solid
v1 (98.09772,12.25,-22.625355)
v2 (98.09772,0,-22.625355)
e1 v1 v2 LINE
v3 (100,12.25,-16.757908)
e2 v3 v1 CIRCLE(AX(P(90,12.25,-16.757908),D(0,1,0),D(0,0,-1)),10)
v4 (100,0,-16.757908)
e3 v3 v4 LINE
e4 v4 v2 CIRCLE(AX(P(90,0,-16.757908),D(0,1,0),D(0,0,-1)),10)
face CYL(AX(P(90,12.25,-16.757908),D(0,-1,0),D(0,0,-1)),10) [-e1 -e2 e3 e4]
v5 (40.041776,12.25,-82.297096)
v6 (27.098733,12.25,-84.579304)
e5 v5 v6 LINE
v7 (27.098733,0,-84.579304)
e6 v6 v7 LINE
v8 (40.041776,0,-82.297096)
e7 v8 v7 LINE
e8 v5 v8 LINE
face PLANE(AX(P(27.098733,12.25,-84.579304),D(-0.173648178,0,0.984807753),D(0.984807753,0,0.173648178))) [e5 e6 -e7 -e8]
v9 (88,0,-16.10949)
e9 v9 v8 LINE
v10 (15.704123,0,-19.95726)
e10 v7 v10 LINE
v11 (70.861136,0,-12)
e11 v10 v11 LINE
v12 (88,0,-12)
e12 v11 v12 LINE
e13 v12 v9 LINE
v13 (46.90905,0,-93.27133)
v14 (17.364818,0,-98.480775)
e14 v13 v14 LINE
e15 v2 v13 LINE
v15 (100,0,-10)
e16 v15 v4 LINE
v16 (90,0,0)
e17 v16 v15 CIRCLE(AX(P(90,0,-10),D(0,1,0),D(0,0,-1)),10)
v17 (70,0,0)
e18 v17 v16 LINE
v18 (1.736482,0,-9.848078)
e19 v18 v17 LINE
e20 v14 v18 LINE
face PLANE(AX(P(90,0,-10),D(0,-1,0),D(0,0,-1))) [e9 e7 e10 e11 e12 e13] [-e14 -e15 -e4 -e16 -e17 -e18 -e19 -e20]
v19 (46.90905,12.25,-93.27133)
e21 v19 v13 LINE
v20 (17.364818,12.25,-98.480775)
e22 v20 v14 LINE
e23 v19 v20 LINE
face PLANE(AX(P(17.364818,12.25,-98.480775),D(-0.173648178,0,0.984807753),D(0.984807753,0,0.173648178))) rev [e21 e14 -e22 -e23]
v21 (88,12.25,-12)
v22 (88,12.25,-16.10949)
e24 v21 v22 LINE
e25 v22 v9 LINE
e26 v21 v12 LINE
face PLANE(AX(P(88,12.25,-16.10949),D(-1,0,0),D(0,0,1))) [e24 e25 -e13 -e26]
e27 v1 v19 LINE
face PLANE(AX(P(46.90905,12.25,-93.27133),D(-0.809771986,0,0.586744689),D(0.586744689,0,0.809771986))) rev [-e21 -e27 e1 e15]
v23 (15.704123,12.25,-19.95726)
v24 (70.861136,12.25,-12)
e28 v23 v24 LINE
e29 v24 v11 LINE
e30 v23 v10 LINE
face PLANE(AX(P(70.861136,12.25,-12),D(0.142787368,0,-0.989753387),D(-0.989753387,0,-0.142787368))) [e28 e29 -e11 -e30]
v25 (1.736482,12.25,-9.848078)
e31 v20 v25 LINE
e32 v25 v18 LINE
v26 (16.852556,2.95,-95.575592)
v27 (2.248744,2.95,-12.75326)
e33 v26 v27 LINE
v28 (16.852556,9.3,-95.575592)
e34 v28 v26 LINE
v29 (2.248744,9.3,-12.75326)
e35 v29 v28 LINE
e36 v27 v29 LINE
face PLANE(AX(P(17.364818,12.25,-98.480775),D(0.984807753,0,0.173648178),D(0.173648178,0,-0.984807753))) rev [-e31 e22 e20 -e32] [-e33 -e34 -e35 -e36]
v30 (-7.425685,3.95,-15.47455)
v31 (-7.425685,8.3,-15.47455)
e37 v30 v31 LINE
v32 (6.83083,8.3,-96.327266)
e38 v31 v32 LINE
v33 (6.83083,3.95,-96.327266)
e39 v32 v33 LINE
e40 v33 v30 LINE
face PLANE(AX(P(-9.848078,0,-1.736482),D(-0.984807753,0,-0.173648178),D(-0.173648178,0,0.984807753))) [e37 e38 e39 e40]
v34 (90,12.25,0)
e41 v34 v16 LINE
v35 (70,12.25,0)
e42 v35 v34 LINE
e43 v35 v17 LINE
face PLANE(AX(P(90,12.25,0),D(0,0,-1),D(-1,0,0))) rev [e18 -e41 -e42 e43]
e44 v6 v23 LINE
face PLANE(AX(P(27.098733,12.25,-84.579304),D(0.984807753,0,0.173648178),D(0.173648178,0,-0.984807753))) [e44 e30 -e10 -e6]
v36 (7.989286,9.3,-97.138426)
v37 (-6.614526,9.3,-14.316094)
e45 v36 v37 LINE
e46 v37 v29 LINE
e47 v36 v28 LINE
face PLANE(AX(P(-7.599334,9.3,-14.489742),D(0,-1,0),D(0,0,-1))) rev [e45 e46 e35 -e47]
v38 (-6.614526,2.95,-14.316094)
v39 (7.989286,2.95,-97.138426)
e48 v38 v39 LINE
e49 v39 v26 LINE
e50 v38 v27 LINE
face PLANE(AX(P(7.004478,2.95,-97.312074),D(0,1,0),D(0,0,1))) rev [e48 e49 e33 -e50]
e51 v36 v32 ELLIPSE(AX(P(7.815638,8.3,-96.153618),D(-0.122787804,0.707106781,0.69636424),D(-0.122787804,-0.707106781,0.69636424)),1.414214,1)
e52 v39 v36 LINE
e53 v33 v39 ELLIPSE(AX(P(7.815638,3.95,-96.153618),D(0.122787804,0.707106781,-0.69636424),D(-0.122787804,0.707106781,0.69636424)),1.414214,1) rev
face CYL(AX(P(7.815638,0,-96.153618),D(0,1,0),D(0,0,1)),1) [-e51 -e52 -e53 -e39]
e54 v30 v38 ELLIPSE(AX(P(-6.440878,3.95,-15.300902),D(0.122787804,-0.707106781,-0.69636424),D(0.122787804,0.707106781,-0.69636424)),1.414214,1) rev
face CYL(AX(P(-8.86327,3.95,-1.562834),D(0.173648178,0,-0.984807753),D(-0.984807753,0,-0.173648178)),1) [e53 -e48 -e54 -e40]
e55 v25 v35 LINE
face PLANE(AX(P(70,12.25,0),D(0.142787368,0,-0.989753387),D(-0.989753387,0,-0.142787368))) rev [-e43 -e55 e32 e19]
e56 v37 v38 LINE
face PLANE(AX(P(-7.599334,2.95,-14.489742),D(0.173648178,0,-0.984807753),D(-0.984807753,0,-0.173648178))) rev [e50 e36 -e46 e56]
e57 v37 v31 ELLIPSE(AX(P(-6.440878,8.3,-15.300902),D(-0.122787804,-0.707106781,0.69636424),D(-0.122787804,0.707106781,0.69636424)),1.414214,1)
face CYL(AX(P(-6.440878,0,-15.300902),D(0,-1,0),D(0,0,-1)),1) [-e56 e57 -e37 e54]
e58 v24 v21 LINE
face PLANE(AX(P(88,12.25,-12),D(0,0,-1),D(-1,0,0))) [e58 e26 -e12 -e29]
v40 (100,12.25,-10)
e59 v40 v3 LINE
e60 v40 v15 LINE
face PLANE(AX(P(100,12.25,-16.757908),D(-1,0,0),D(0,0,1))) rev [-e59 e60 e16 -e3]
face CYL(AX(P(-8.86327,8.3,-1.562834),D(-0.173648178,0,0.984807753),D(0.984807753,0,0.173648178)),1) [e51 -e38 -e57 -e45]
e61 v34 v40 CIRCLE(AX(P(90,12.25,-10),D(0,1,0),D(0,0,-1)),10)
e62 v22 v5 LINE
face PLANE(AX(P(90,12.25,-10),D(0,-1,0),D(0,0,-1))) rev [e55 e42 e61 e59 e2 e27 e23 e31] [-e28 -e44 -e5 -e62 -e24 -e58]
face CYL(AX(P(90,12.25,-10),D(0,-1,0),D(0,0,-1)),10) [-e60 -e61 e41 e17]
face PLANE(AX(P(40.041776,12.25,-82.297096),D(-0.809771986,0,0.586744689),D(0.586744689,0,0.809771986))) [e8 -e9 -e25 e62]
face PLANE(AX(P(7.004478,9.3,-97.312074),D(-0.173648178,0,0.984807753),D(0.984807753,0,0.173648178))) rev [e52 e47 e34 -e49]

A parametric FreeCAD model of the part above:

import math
import FreeCAD as App
import Part
import Sketcher
Q = App.Units.Quantity


def edges_at(feature, points):
    """Names of the edges that pass closest to the given points."""
    edges = feature.Shape.Edges
    near = lambda p: min(range(len(edges)), key=lambda i: edges[i].distToShape(Part.Vertex(*p))[0])
    return sorted({f"Edge{near(p) + 1}" for p in points})

doc = App.newDocument("Part")
body = doc.addObject("PartDesign::Body", "Body")

sketch1 = body.newObject("Sketcher::SketchObject", "Sketch")
sketch1.AttachmentSupport = (doc.getObject("XZ_Plane"), [""])
sketch1.MapMode = "FlatFace"
sketch1.addGeometry(Part.LineSegment(App.Vector(46.9, -93.3, 0), App.Vector(17.4, -98.5, 0)), False)
sketch1.addGeometry(Part.LineSegment(App.Vector(17.4, -98.5, 0), App.Vector(1.7, -9.8, 0)), False)
sketch1.addGeometry(Part.LineSegment(App.Vector(1.7, -9.8, 0), App.Vector(70, 0, 0)), False)
sketch1.addGeometry(Part.LineSegment(App.Vector(70, 0, 0), App.Vector(90, 0, 0)), False)
sketch1.addGeometry(Part.ArcOfCircle(Part.Circle(App.Vector(90, -10, 0), App.Vector(0, 0, 1), 10), math.radians(0), math.radians(90)), False)
sketch1.addGeometry(Part.LineSegment(App.Vector(100, -10, 0), App.Vector(100, -16.8, 0)), False)
sketch1.addGeometry(Part.ArcOfCircle(Part.Circle(App.Vector(90, -16.8, 0), App.Vector(0, 0, 1), 10), math.radians(-36), math.radians(0)), False)
sketch1.addGeometry(Part.LineSegment(App.Vector(98.1, -22.6, 0), App.Vector(46.9, -93.3, 0)), False)
sketch1.addGeometry(Part.LineSegment(App.Vector(40, -82.3, 0), App.Vector(88, -16.1, 0)), False)
sketch1.addGeometry(Part.LineSegment(App.Vector(88, -16.1, 0), App.Vector(88, -12, 0)), False)
sketch1.addGeometry(Part.LineSegment(App.Vector(88, -12, 0), App.Vector(70.9, -12, 0)), False)
sketch1.addGeometry(Part.LineSegment(App.Vector(70.9, -12, 0), App.Vector(15.7, -20, 0)), False)
sketch1.addGeometry(Part.LineSegment(App.Vector(15.7, -20, 0), App.Vector(27.1, -84.6, 0)), False)
sketch1.addGeometry(Part.LineSegment(App.Vector(27.1, -84.6, 0), App.Vector(40, -82.3, 0)), False)
sketch1.addConstraint(Sketcher.Constraint("Coincident", 0, 2, 1, 1))
sketch1.addConstraint(Sketcher.Constraint("Coincident", 1, 2, 2, 1))
sketch1.addConstraint(Sketcher.Constraint("Coincident", 2, 2, 3, 1))
sketch1.addConstraint(Sketcher.Constraint("Tangent", 3, 2, 4, 2))
sketch1.addConstraint(Sketcher.Constraint("Tangent", 4, 1, 5, 1))
sketch1.addConstraint(Sketcher.Constraint("Tangent", 5, 2, 6, 2))
sketch1.addConstraint(Sketcher.Constraint("Tangent", 6, 1, 7, 1))
sketch1.addConstraint(Sketcher.Constraint("Coincident", 7, 2, 0, 1))
sketch1.addConstraint(Sketcher.Constraint("Coincident", 8, 2, 9, 1))
sketch1.addConstraint(Sketcher.Constraint("Coincident", 9, 2, 10, 1))
sketch1.addConstraint(Sketcher.Constraint("Coincident", 10, 2, 11, 1))
sketch1.addConstraint(Sketcher.Constraint("Coincident", 11, 2, 12, 1))
sketch1.addConstraint(Sketcher.Constraint("Coincident", 12, 2, 13, 1))
sketch1.addConstraint(Sketcher.Constraint("Coincident", 13, 2, 8, 1))
sketch1.addConstraint(Sketcher.Constraint("Horizontal", 3))
sketch1.addConstraint(Sketcher.Constraint("Vertical", 5))
sketch1.addConstraint(Sketcher.Constraint("Vertical", 9))
sketch1.addConstraint(Sketcher.Constraint("Horizontal", 10))
sketch1.addConstraint(Sketcher.Constraint("Equal", 4, 6))
sketch1.addConstraint(Sketcher.Constraint("PointOnObject", 2, 2, -1))
sketch1.addConstraint(Sketcher.Constraint("Perpendicular", 0, 1))
sketch1.addConstraint(Sketcher.Constraint("Parallel", 7, 8))
sketch1.addConstraint(Sketcher.Constraint("Parallel", 2, 11))
sketch1.addConstraint(Sketcher.Constraint("Parallel", 1, 12))
sketch1.addConstraint(Sketcher.Constraint("Perpendicular", 12, 13))
sketch1.addConstraint(Sketcher.Constraint("Radius", 4, Q("10 mm")))
sketch1.addConstraint(Sketcher.Constraint("DistanceX", 3, 1, 3, 2, Q("20 mm")))
sketch1.addConstraint(Sketcher.Constraint("Angle", 0, Q("-170 deg")))
sketch1.addConstraint(Sketcher.Constraint("Distance", 0, Q("30 mm")))
sketch1.addConstraint(Sketcher.Constraint("Distance", 1, Q("90 mm")))
sketch1.addConstraint(Sketcher.Constraint("DistanceX", -1, 1, 4, 3, Q("90 mm")))
sketch1.addConstraint(Sketcher.Constraint("DistanceX", -1, 1, 8, 2, Q("88 mm")))
sketch1.addConstraint(Sketcher.Constraint("DistanceY", 9, 2, -1, 1, Q("12 mm")))
sketch1.addConstraint(Sketcher.Constraint("DistanceY", 5, 2, 5, 1, Q("6.757908 mm")))
sketch1.addConstraint(Sketcher.Constraint("DistanceY", 9, 1, 9, 2, Q("4.10949 mm")))
sketch1.addConstraint(Sketcher.Constraint("Distance", 2, Q("68.970229 mm")))
sketch1.addConstraint(Sketcher.Constraint("Distance", 7, Q("87.241811 mm")))
sketch1.addConstraint(Sketcher.Constraint("Distance", 13, Q("13.14271 mm")))
sketch1.addConstraint(Sketcher.Constraint("DistanceX", 10, 2, 10, 1, Q("17.138864 mm")))
sketch1.addConstraint(Sketcher.Constraint("DistanceY", 11, 2, -1, 1, Q("19.95726 mm")))
pad1 = body.newObject("PartDesign::Pad", "Pad")
pad1.Profile = sketch1
pad1.Length = 12.25
pad1.Reversed = True

sketch2 = body.newObject("Sketcher::SketchObject", "Sketch001")
sketch2.Placement = App.Placement(App.Vector(0, 0, 0), App.Rotation(App.Vector(-0.173648178, 0, 0.984807753), App.Vector(0, 1, 0), App.Vector(-0.984807753, 0, -0.173648178), "ZXY"))
sketch2.addGeometry(Part.LineSegment(App.Vector(-97, 9, 0), App.Vector(-97, 3, 0)), False)
sketch2.addGeometry(Part.LineSegment(App.Vector(-97, 3, 0), App.Vector(-13, 3, 0)), False)
sketch2.addGeometry(Part.LineSegment(App.Vector(-13, 3, 0), App.Vector(-13, 9, 0)), False)
sketch2.addGeometry(Part.LineSegment(App.Vector(-13, 9, 0), App.Vector(-97, 9, 0)), False)
sketch2.addConstraint(Sketcher.Constraint("Coincident", 0, 2, 1, 1))
sketch2.addConstraint(Sketcher.Constraint("Coincident", 1, 2, 2, 1))
sketch2.addConstraint(Sketcher.Constraint("Coincident", 2, 2, 3, 1))
sketch2.addConstraint(Sketcher.Constraint("Coincident", 3, 2, 0, 1))
sketch2.addConstraint(Sketcher.Constraint("Vertical", 0))
sketch2.addConstraint(Sketcher.Constraint("Horizontal", 1))
sketch2.addConstraint(Sketcher.Constraint("Vertical", 2))
sketch2.addConstraint(Sketcher.Constraint("Horizontal", 3))
sketch2.addConstraint(Sketcher.Constraint("DistanceX", 1, 1, 1, 2, Q("84.1 mm")))
sketch2.addConstraint(Sketcher.Constraint("DistanceY", 0, 2, 0, 1, Q("6.35 mm")))
sketch2.addConstraint(Sketcher.Constraint("DistanceY", -1, 1, 2, 2, Q("9.3 mm")))
sketch2.addConstraint(Sketcher.Constraint("DistanceX", 0, 2, -1, 1, Q("97.05 mm")))
pad2 = body.newObject("PartDesign::Pad", "Pad001")
pad2.Profile = sketch2
pad2.Length = 10
doc.recompute()

fillet = body.newObject("PartDesign::Fillet", "Fillet")
fillet.Base = (pad2, edges_at(pad2, [
    (-0.297, 2.95, -55.901),
    (-7.599, 6.125, -14.49),
    (-0.297, 9.3, -55.901),
    (7.004, 6.125, -97.312),
]))
fillet.Radius = 1

doc.recompute()
